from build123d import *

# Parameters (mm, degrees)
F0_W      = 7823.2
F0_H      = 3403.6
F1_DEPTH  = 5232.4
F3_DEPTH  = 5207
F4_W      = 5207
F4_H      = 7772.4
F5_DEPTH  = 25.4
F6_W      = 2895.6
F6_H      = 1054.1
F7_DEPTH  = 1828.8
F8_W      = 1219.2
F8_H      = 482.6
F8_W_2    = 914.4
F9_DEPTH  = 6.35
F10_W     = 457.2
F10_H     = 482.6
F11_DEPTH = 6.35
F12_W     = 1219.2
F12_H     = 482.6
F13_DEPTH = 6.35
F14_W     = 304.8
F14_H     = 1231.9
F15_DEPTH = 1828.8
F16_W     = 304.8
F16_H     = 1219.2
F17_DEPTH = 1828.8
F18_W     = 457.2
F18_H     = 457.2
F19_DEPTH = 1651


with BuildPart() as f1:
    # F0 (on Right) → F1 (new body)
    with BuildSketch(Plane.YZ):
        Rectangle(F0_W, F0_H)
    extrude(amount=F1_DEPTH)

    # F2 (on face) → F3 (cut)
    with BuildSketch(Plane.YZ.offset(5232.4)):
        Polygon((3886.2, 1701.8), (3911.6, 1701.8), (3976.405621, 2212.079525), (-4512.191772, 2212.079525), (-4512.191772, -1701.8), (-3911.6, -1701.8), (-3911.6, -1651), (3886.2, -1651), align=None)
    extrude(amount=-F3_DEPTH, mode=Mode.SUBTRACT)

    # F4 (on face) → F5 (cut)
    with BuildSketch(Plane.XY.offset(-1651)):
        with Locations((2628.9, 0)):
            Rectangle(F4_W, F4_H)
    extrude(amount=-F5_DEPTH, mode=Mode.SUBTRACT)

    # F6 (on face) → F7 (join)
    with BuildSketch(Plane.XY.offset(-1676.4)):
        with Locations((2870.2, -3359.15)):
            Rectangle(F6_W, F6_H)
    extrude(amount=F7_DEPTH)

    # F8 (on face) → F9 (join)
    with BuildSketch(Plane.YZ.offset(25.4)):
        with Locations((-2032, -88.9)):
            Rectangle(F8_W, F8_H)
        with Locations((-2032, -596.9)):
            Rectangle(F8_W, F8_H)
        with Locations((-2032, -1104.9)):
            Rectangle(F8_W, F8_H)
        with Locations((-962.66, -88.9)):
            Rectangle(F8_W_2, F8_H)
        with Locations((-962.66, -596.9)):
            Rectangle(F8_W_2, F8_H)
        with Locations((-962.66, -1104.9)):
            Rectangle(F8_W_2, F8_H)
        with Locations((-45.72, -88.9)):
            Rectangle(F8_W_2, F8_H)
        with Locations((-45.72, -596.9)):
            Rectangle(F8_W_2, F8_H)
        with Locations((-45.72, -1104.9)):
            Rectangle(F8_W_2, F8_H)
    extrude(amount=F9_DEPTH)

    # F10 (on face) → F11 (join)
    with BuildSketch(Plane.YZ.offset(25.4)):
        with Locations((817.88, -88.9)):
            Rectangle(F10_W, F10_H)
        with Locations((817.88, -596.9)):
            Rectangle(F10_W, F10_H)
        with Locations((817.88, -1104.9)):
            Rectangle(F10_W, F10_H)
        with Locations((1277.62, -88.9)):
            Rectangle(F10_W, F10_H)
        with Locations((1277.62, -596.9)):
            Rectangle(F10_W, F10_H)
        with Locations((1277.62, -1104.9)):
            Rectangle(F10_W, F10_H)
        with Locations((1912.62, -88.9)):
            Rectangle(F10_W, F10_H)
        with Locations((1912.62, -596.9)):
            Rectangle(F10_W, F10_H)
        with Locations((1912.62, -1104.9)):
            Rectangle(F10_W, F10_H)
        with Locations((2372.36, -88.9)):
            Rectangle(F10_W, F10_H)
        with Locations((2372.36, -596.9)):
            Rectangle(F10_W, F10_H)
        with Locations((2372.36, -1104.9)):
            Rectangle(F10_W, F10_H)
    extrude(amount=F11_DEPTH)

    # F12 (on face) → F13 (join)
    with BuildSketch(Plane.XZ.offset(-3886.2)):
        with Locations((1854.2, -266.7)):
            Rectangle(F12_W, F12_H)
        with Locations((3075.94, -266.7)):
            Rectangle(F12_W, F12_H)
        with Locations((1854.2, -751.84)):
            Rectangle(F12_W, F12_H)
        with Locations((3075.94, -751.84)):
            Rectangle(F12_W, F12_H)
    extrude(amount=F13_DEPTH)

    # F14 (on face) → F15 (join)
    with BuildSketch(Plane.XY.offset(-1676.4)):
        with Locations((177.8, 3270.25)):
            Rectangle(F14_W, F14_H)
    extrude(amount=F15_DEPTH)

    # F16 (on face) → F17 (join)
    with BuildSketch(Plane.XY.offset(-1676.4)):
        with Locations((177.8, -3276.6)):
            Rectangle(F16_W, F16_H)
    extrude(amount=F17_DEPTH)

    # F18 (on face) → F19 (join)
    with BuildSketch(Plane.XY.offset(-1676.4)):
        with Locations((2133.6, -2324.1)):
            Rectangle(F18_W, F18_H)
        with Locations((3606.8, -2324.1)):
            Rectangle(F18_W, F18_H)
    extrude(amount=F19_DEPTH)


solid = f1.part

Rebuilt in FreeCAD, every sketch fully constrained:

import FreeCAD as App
import Part
import Sketcher

V = App.Vector
Q = App.Units.Quantity


def add_polygon(sketch, points):
    """Adds a closed chain of lines whose ends are joined by coincident constraints."""
    first, n = sketch.GeometryCount, len(points)
    for a, b in zip(points, points[1:] + points[:1]):
        sketch.addGeometry(Part.LineSegment(App.Vector(*a, 0), App.Vector(*b, 0)), False)
    for i in range(n):
        sketch.addConstraint(Sketcher.Constraint("Coincident", first + i, 2, first + (i + 1) % n, 1))

doc = App.newDocument("Part")
params = doc.addObject("Spreadsheet::Sheet", "Params")
for row, (alias, value) in enumerate([
    ("sketch1_width", "308 in"),
    ("sketch1_height", "134 in"),
    ("pad1_length", "206 in"),
    ("sketch2_width", "1 in"),
    ("sketch2_width2", "307 in"),
    ("sketch2_height", "2 in"),
    ("sketch2_height2", "132 in"),
    ("pocket1_length", "205 in"),
    ("sketch3_width", "205 in"),
    ("sketch3_height", "306 in"),
    ("pocket2_length", "1 in"),
    ("sketch4_width", "114 in"),
    ("sketch4_height", "41.5 in"),
    ("pad2_length", "72 in"),
    ("sketch5_width", "48 in"),
    ("sketch5_width2", "36 in"),
    ("sketch5_height", "19 in"),
    ("pad3_length", "0.25 in"),
    ("sketch6_width", "18 in"),
    ("sketch6_height", "19 in"),
    ("pad4_length", "0.25 in"),
    ("sketch7_width", "48 in"),
    ("sketch7_height", "19 in"),
    ("pad5_length", "0.25 in"),
    ("sketch8_width", "12 in"),
    ("sketch8_height", "48.5 in"),
    ("pad6_length", "72 in"),
    ("sketch9_width", "12 in"),
    ("sketch9_height", "48 in"),
    ("pad7_length", "72 in"),
    ("sketch10_width", "18 in"),
    ("pad8_length", "65 in"),
], start=1):
    params.set(f"A{row}", alias)
    params.set(f"B{row}", "=" + value)
    params.setAlias(f"B{row}", alias)

body = doc.addObject("PartDesign::Body", "Body")

sketch1 = doc.addObject("Sketcher::SketchObject", "Sketch")
body.addObject(sketch1)
sketch1.AttachmentSupport = (doc.YZ_Plane, [""])
sketch1.MapMode = "FlatFace"
add_polygon(sketch1, [(-3912, 1702), (-3912, -1702), (3912, -1702), (3912, 1702)])
sketch1.addConstraint(Sketcher.Constraint("Vertical", 0))
sketch1.addConstraint(Sketcher.Constraint("Horizontal", 1))
sketch1.addConstraint(Sketcher.Constraint("Vertical", 2))
sketch1.addConstraint(Sketcher.Constraint("Horizontal", 3))
sketch1.addConstraint(Sketcher.Constraint("Symmetric", 0, 2, 2, 2, -1, 1))
sketch1.addConstraint(Sketcher.Constraint("DistanceX", 1, 1, 1, 2, Q("308 in")))
sketch1.addConstraint(Sketcher.Constraint("DistanceY", 0, 2, 0, 1, Q("134 in")))
sketch1.setExpression("Constraints[9]", "Params.sketch1_width")
sketch1.setExpression("Constraints[10]", "Params.sketch1_height")
pad1 = doc.addObject("PartDesign::Pad", "Pad")
body.addObject(pad1)
pad1.Profile = sketch1
pad1.setExpression("Length", "Params.pad1_length")

sketch2 = doc.addObject("Sketcher::SketchObject", "Sketch001")
body.addObject(sketch2)
sketch2.AttachmentSupport = (doc.YZ_Plane, [""])
sketch2.MapMode = "FlatFace"
sketch2.AttachmentOffset = App.Placement(V(0, 0, 206 * 25.4), App.Rotation())
add_polygon(sketch2, [(3886, 1702), (3912, 1702), (3976, 2212), (-4512, 2212), (-4512, -1702), (-3912, -1702), (-3912, -1651), (3886, -1651)])
sketch2.addConstraint(Sketcher.Constraint("Horizontal", 0))
sketch2.addConstraint(Sketcher.Constraint("Horizontal", 2))
sketch2.addConstraint(Sketcher.Constraint("Vertical", 3))
sketch2.addConstraint(Sketcher.Constraint("Horizontal", 4))
sketch2.addConstraint(Sketcher.Constraint("Vertical", 5))
sketch2.addConstraint(Sketcher.Constraint("Horizontal", 6))
sketch2.addConstraint(Sketcher.Constraint("Vertical", 7))
sketch2.addConstraint(Sketcher.Constraint("Symmetric", 0, 2, 4, 2, -1, 1))
sketch2.addConstraint(Sketcher.Constraint("DistanceX", 0, 1, 0, 2, Q("1 in")))
sketch2.addConstraint(Sketcher.Constraint("DistanceX", 6, 1, 6, 2, Q("307 in")))
sketch2.addConstraint(Sketcher.Constraint("DistanceY", 5, 1, 5, 2, Q("2 in")))
sketch2.addConstraint(Sketcher.Constraint("DistanceY", 7, 1, 7, 2, Q("132 in")))
sketch2.addConstraint(Sketcher.Constraint("Distance", 1, Q("514.378229 mm")))
sketch2.addConstraint(Sketcher.Constraint("DistanceX", 2, 2, 2, 1, Q("8488.597393 mm")))
sketch2.addConstraint(Sketcher.Constraint("DistanceX", 4, 1, 4, 2, Q("600.591772 mm")))
sketch2.setExpression("Constraints[16]", "Params.sketch2_width")
sketch2.setExpression("Constraints[17]", "Params.sketch2_width2")
sketch2.setExpression("Constraints[18]", "Params.sketch2_height")
sketch2.setExpression("Constraints[19]", "Params.sketch2_height2")
pocket1 = doc.addObject("PartDesign::Pocket", "Pocket")
body.addObject(pocket1)
pocket1.Profile = sketch2
pocket1.setExpression("Length", "Params.pocket1_length")

sketch3 = doc.addObject("Sketcher::SketchObject", "Sketch002")
body.addObject(sketch3)
sketch3.AttachmentSupport = (doc.XY_Plane, [""])
sketch3.MapMode = "FlatFace"
sketch3.AttachmentOffset = App.Placement(V(0, 0, -65 * 25.4), App.Rotation())
add_polygon(sketch3, [(25, 3886), (25, -3886), (5232, -3886), (5232, 3886)])
sketch3.addConstraint(Sketcher.Constraint("Vertical", 0))
sketch3.addConstraint(Sketcher.Constraint("Horizontal", 1))
sketch3.addConstraint(Sketcher.Constraint("Vertical", 2))
sketch3.addConstraint(Sketcher.Constraint("Horizontal", 3))
sketch3.addConstraint(Sketcher.Constraint("DistanceX", 1, 1, 1, 2, Q("205 in")))
sketch3.addConstraint(Sketcher.Constraint("DistanceY", 0, 2, 0, 1, Q("306 in")))
sketch3.addConstraint(Sketcher.Constraint("DistanceX", -1, 1, 0, 2, Q("1 in")))
sketch3.addConstraint(Sketcher.Constraint("DistanceY", 0, 2, -1, 1, Q("153 in")))
sketch3.setExpression("Constraints[8]", "Params.sketch3_width")
sketch3.setExpression("Constraints[9]", "Params.sketch3_height")
pocket2 = doc.addObject("PartDesign::Pocket", "Pocket001")
body.addObject(pocket2)
pocket2.Profile = sketch3
pocket2.setExpression("Length", "Params.pocket2_length")

sketch4 = doc.addObject("Sketcher::SketchObject", "Sketch003")
body.addObject(sketch4)
sketch4.AttachmentSupport = (doc.XY_Plane, [""])
sketch4.MapMode = "FlatFace"
sketch4.AttachmentOffset = App.Placement(V(0, 0, -66 * 25.4), App.Rotation())
add_polygon(sketch4, [(1422, -2832), (1422, -3886), (4318, -3886), (4318, -2832)])
sketch4.addConstraint(Sketcher.Constraint("Vertical", 0))
sketch4.addConstraint(Sketcher.Constraint("Horizontal", 1))
sketch4.addConstraint(Sketcher.Constraint("Vertical", 2))
sketch4.addConstraint(Sketcher.Constraint("Horizontal", 3))
sketch4.addConstraint(Sketcher.Constraint("DistanceX", 1, 1, 1, 2, Q("114 in")))
sketch4.addConstraint(Sketcher.Constraint("DistanceY", 0, 2, 0, 1, Q("41.5 in")))
sketch4.addConstraint(Sketcher.Constraint("DistanceX", -1, 1, 0, 2, Q("56 in")))
sketch4.addConstraint(Sketcher.Constraint("DistanceY", 0, 2, -1, 1, Q("153 in")))
sketch4.setExpression("Constraints[8]", "Params.sketch4_width")
sketch4.setExpression("Constraints[9]", "Params.sketch4_height")
pad2 = doc.addObject("PartDesign::Pad", "Pad001")
body.addObject(pad2)
pad2.Profile = sketch4
pad2.setExpression("Length", "Params.pad2_length")

sketch5 = doc.addObject("Sketcher::SketchObject", "Sketch004")
body.addObject(sketch5)
sketch5.AttachmentSupport = (doc.YZ_Plane, [""])
sketch5.MapMode = "FlatFace"
sketch5.AttachmentOffset = App.Placement(V(0, 0, 1 * 25.4), App.Rotation())
add_polygon(sketch5, [(-2642, 152), (-2642, -330), (-1422, -330), (-1422, 152)])
add_polygon(sketch5, [(-2642, -356), (-2642, -838), (-1422, -838), (-1422, -356)])
add_polygon(sketch5, [(-2642, -864), (-2642, -1346), (-1422, -1346), (-1422, -864)])
add_polygon(sketch5, [(-1420, 152), (-1420, -330), (-505, -330), (-505, 152)])
add_polygon(sketch5, [(-1420, -356), (-1420, -838), (-505, -838), (-505, -356)])
add_polygon(sketch5, [(-1420, -864), (-1420, -1346), (-505, -1346), (-505, -864)])
add_polygon(sketch5, [(-503, 152), (-503, -330), (411, -330), (411, 152)])
add_polygon(sketch5, [(-503, -356), (-503, -838), (411, -838), (411, -356)])
add_polygon(sketch5, [(-503, -864), (-503, -1346), (411, -1346), (411, -864)])
sketch5.addConstraint(Sketcher.Constraint("Vertical", 0))
sketch5.addConstraint(Sketcher.Constraint("Horizontal", 1))
sketch5.addConstraint(Sketcher.Constraint("Vertical", 2))
sketch5.addConstraint(Sketcher.Constraint("Horizontal", 3))
sketch5.addConstraint(Sketcher.Constraint("Vertical", 4))
sketch5.addConstraint(Sketcher.Constraint("Horizontal", 5))
sketch5.addConstraint(Sketcher.Constraint("Vertical", 6))
sketch5.addConstraint(Sketcher.Constraint("Horizontal", 7))
sketch5.addConstraint(Sketcher.Constraint("Vertical", 8))
sketch5.addConstraint(Sketcher.Constraint("Horizontal", 9))
sketch5.addConstraint(Sketcher.Constraint("Vertical", 10))
sketch5.addConstraint(Sketcher.Constraint("Horizontal", 11))
sketch5.addConstraint(Sketcher.Constraint("Vertical", 12))
sketch5.addConstraint(Sketcher.Constraint("Horizontal", 13))
sketch5.addConstraint(Sketcher.Constraint("Vertical", 14))
sketch5.addConstraint(Sketcher.Constraint("Horizontal", 15))
sketch5.addConstraint(Sketcher.Constraint("Vertical", 16))
sketch5.addConstraint(Sketcher.Constraint("Horizontal", 17))
sketch5.addConstraint(Sketcher.Constraint("Vertical", 18))
sketch5.addConstraint(Sketcher.Constraint("Horizontal", 19))
sketch5.addConstraint(Sketcher.Constraint("Vertical", 20))
sketch5.addConstraint(Sketcher.Constraint("Horizontal", 21))
sketch5.addConstraint(Sketcher.Constraint("Vertical", 22))
sketch5.addConstraint(Sketcher.Constraint("Horizontal", 23))
sketch5.addConstraint(Sketcher.Constraint("Vertical", 24))
sketch5.addConstraint(Sketcher.Constraint("Horizontal", 25))
sketch5.addConstraint(Sketcher.Constraint("Vertical", 26))
sketch5.addConstraint(Sketcher.Constraint("Horizontal", 27))
sketch5.addConstraint(Sketcher.Constraint("Vertical", 28))
sketch5.addConstraint(Sketcher.Constraint("Horizontal", 29))
sketch5.addConstraint(Sketcher.Constraint("Vertical", 30))
sketch5.addConstraint(Sketcher.Constraint("Horizontal", 31))
sketch5.addConstraint(Sketcher.Constraint("Vertical", 32))
sketch5.addConstraint(Sketcher.Constraint("Horizontal", 33))
sketch5.addConstraint(Sketcher.Constraint("Vertical", 34))
sketch5.addConstraint(Sketcher.Constraint("Horizontal", 35))
sketch5.addConstraint(Sketcher.Constraint("Horizontal", 1, 2, 12, 2))
sketch5.addConstraint(Sketcher.Constraint("Horizontal", 3, 2, 14, 2))
sketch5.addConstraint(Sketcher.Constraint("Horizontal", 5, 2, 16, 2))
sketch5.addConstraint(Sketcher.Constraint("Horizontal", 7, 2, 18, 2))
sketch5.addConstraint(Sketcher.Constraint("Horizontal", 9, 2, 20, 2))
sketch5.addConstraint(Sketcher.Constraint("Horizontal", 11, 2, 22, 2))
sketch5.addConstraint(Sketcher.Constraint("Horizontal", 13, 2, 24, 2))
sketch5.addConstraint(Sketcher.Constraint("Horizontal", 15, 2, 26, 2))
sketch5.addConstraint(Sketcher.Constraint("Horizontal", 17, 2, 28, 2))
sketch5.addConstraint(Sketcher.Constraint("Horizontal", 19, 2, 30, 2))
sketch5.addConstraint(Sketcher.Constraint("Horizontal", 21, 2, 32, 2))
sketch5.addConstraint(Sketcher.Constraint("Horizontal", 23, 2, 34, 2))
sketch5.addConstraint(Sketcher.Constraint("Vertical", 3, 2, 4, 2))
sketch5.addConstraint(Sketcher.Constraint("Vertical", 2, 2, 5, 2))
sketch5.addConstraint(Sketcher.Constraint("Vertical", 7, 2, 8, 2))
sketch5.addConstraint(Sketcher.Constraint("Vertical", 6, 2, 9, 2))
sketch5.addConstraint(Sketcher.Constraint("Vertical", 15, 2, 16, 2))
sketch5.addConstraint(Sketcher.Constraint("Vertical", 14, 2, 17, 2))
sketch5.addConstraint(Sketcher.Constraint("Vertical", 19, 2, 20, 2))
sketch5.addConstraint(Sketcher.Constraint("Vertical", 18, 2, 21, 2))
sketch5.addConstraint(Sketcher.Constraint("Vertical", 27, 2, 28, 2))
sketch5.addConstraint(Sketcher.Constraint("Vertical", 26, 2, 29, 2))
sketch5.addConstraint(Sketcher.Constraint("Vertical", 31, 2, 32, 2))
sketch5.addConstraint(Sketcher.Constraint("Vertical", 30, 2, 33, 2))
sketch5.addConstraint(Sketcher.Constraint("Equal", 23, 25))
sketch5.addConstraint(Sketcher.Constraint("Equal", 2, 4))
sketch5.addConstraint(Sketcher.Constraint("Equal", 6, 8))
sketch5.addConstraint(Sketcher.Constraint("DistanceX", 1, 1, 1, 2, Q("48 in")))
sketch5.addConstraint(Sketcher.Constraint("DistanceX", 13, 1, 13, 2, Q("36 in")))
sketch5.addConstraint(Sketcher.Constraint("DistanceY", 0, 2, 0, 1, Q("19 in")))
sketch5.addConstraint(Sketcher.Constraint("DistanceX", 0, 2, -1, 1, Q("104 in")))
sketch5.addConstraint(Sketcher.Constraint("DistanceY", 0, 2, -1, 1, Q("13 in")))
sketch5.addConstraint(Sketcher.Constraint("DistanceY", 4, 2, -1, 1, Q("33 in")))
sketch5.addConstraint(Sketcher.Constraint("DistanceY", 8, 2, -1, 1, Q("53 in")))
sketch5.addConstraint(Sketcher.Constraint("DistanceX", 12, 2, -1, 1, Q("55.9 in")))
sketch5.addConstraint(Sketcher.Constraint("DistanceX", 24, 2, -1, 1, Q("19.8 in")))
sketch5.setExpression("Constraints[99]", "Params.sketch5_width")
sketch5.setExpression("Constraints[100]", "Params.sketch5_width2")
sketch5.setExpression("Constraints[101]", "Params.sketch5_height")
pad3 = doc.addObject("PartDesign::Pad", "Pad002")
body.addObject(pad3)
pad3.Profile = sketch5
pad3.setExpression("Length", "Params.pad3_length")

sketch6 = doc.addObject("Sketcher::SketchObject", "Sketch005")
body.addObject(sketch6)
sketch6.AttachmentSupport = (doc.YZ_Plane, [""])
sketch6.MapMode = "FlatFace"
sketch6.AttachmentOffset = App.Placement(V(0, 0, 1 * 25.4), App.Rotation())
add_polygon(sketch6, [(589, 152), (589, -330), (1046, -330), (1046, 152)])
add_polygon(sketch6, [(589, -356), (589, -838), (1046, -838), (1046, -356)])
add_polygon(sketch6, [(589, -864), (589, -1346), (1046, -1346), (1046, -864)])
add_polygon(sketch6, [(1049, 152), (1049, -330), (1506, -330), (1506, 152)])
add_polygon(sketch6, [(1049, -356), (1049, -838), (1506, -838), (1506, -356)])
add_polygon(sketch6, [(1049, -864), (1049, -1346), (1506, -1346), (1506, -864)])
add_polygon(sketch6, [(1684, 152), (1684, -330), (2141, -330), (2141, 152)])
add_polygon(sketch6, [(1684, -356), (1684, -838), (2141, -838), (2141, -356)])
add_polygon(sketch6, [(1684, -864), (1684, -1346), (2141, -1346), (2141, -864)])
add_polygon(sketch6, [(2144, 152), (2144, -330), (2601, -330), (2601, 152)])
add_polygon(sketch6, [(2144, -356), (2144, -838), (2601, -838), (2601, -356)])
add_polygon(sketch6, [(2144, -864), (2144, -1346), (2601, -1346), (2601, -864)])
sketch6.addConstraint(Sketcher.Constraint("Vertical", 0))
sketch6.addConstraint(Sketcher.Constraint("Horizontal", 1))
sketch6.addConstraint(Sketcher.Constraint("Vertical", 2))
sketch6.addConstraint(Sketcher.Constraint("Horizontal", 3))
sketch6.addConstraint(Sketcher.Constraint("Vertical", 4))
sketch6.addConstraint(Sketcher.Constraint("Horizontal", 5))
sketch6.addConstraint(Sketcher.Constraint("Vertical", 6))
sketch6.addConstraint(Sketcher.Constraint("Horizontal", 7))
sketch6.addConstraint(Sketcher.Constraint("Vertical", 8))
sketch6.addConstraint(Sketcher.Constraint("Horizontal", 9))
sketch6.addConstraint(Sketcher.Constraint("Vertical", 10))
sketch6.addConstraint(Sketcher.Constraint("Horizontal", 11))
sketch6.addConstraint(Sketcher.Constraint("Vertical", 12))
sketch6.addConstraint(Sketcher.Constraint("Horizontal", 13))
sketch6.addConstraint(Sketcher.Constraint("Vertical", 14))
sketch6.addConstraint(Sketcher.Constraint("Horizontal", 15))
sketch6.addConstraint(Sketcher.Constraint("Vertical", 16))
sketch6.addConstraint(Sketcher.Constraint("Horizontal", 17))
sketch6.addConstraint(Sketcher.Constraint("Vertical", 18))
sketch6.addConstraint(Sketcher.Constraint("Horizontal", 19))
sketch6.addConstraint(Sketcher.Constraint("Vertical", 20))
sketch6.addConstraint(Sketcher.Constraint("Horizontal", 21))
sketch6.addConstraint(Sketcher.Constraint("Vertical", 22))
sketch6.addConstraint(Sketcher.Constraint("Horizontal", 23))
sketch6.addConstraint(Sketcher.Constraint("Vertical", 24))
sketch6.addConstraint(Sketcher.Constraint("Horizontal", 25))
sketch6.addConstraint(Sketcher.Constraint("Vertical", 26))
sketch6.addConstraint(Sketcher.Constraint("Horizontal", 27))
sketch6.addConstraint(Sketcher.Constraint("Vertical", 28))
sketch6.addConstraint(Sketcher.Constraint("Horizontal", 29))
sketch6.addConstraint(Sketcher.Constraint("Vertical", 30))
sketch6.addConstraint(Sketcher.Constraint("Horizontal", 31))
sketch6.addConstraint(Sketcher.Constraint("Vertical", 32))
sketch6.addConstraint(Sketcher.Constraint("Horizontal", 33))
sketch6.addConstraint(Sketcher.Constraint("Vertical", 34))
sketch6.addConstraint(Sketcher.Constraint("Horizontal", 35))
sketch6.addConstraint(Sketcher.Constraint("Vertical", 36))
sketch6.addConstraint(Sketcher.Constraint("Horizontal", 37))
sketch6.addConstraint(Sketcher.Constraint("Vertical", 38))
sketch6.addConstraint(Sketcher.Constraint("Horizontal", 39))
sketch6.addConstraint(Sketcher.Constraint("Vertical", 40))
sketch6.addConstraint(Sketcher.Constraint("Horizontal", 41))
sketch6.addConstraint(Sketcher.Constraint("Vertical", 42))
sketch6.addConstraint(Sketcher.Constraint("Horizontal", 43))
sketch6.addConstraint(Sketcher.Constraint("Vertical", 44))
sketch6.addConstraint(Sketcher.Constraint("Horizontal", 45))
sketch6.addConstraint(Sketcher.Constraint("Vertical", 46))
sketch6.addConstraint(Sketcher.Constraint("Horizontal", 47))
sketch6.addConstraint(Sketcher.Constraint("Horizontal", 1, 2, 12, 2))
sketch6.addConstraint(Sketcher.Constraint("Horizontal", 3, 2, 14, 2))
sketch6.addConstraint(Sketcher.Constraint("Horizontal", 5, 2, 16, 2))
sketch6.addConstraint(Sketcher.Constraint("Horizontal", 7, 2, 18, 2))
sketch6.addConstraint(Sketcher.Constraint("Horizontal", 9, 2, 20, 2))
sketch6.addConstraint(Sketcher.Constraint("Horizontal", 11, 2, 22, 2))
sketch6.addConstraint(Sketcher.Constraint("Horizontal", 13, 2, 24, 2))
sketch6.addConstraint(Sketcher.Constraint("Horizontal", 15, 2, 26, 2))
sketch6.addConstraint(Sketcher.Constraint("Horizontal", 17, 2, 28, 2))
sketch6.addConstraint(Sketcher.Constraint("Horizontal", 19, 2, 30, 2))
sketch6.addConstraint(Sketcher.Constraint("Horizontal", 21, 2, 32, 2))
sketch6.addConstraint(Sketcher.Constraint("Horizontal", 23, 2, 34, 2))
sketch6.addConstraint(Sketcher.Constraint("Horizontal", 25, 2, 36, 2))
sketch6.addConstraint(Sketcher.Constraint("Horizontal", 27, 2, 38, 2))
sketch6.addConstraint(Sketcher.Constraint("Horizontal", 29, 2, 40, 2))
sketch6.addConstraint(Sketcher.Constraint("Horizontal", 31, 2, 42, 2))
sketch6.addConstraint(Sketcher.Constraint("Horizontal", 33, 2, 44, 2))
sketch6.addConstraint(Sketcher.Constraint("Horizontal", 35, 2, 46, 2))
sketch6.addConstraint(Sketcher.Constraint("Vertical", 3, 2, 4, 2))
sketch6.addConstraint(Sketcher.Constraint("Vertical", 2, 2, 5, 2))
sketch6.addConstraint(Sketcher.Constraint("Vertical", 7, 2, 8, 2))
sketch6.addConstraint(Sketcher.Constraint("Vertical", 6, 2, 9, 2))
sketch6.addConstraint(Sketcher.Constraint("Vertical", 15, 2, 16, 2))
sketch6.addConstraint(Sketcher.Constraint("Vertical", 14, 2, 17, 2))
sketch6.addConstraint(Sketcher.Constraint("Vertical", 19, 2, 20, 2))
sketch6.addConstraint(Sketcher.Constraint("Vertical", 18, 2, 21, 2))
sketch6.addConstraint(Sketcher.Constraint("Vertical", 27, 2, 28, 2))
sketch6.addConstraint(Sketcher.Constraint("Vertical", 26, 2, 29, 2))
sketch6.addConstraint(Sketcher.Constraint("Vertical", 31, 2, 32, 2))
sketch6.addConstraint(Sketcher.Constraint("Vertical", 30, 2, 33, 2))
sketch6.addConstraint(Sketcher.Constraint("Vertical", 39, 2, 40, 2))
sketch6.addConstraint(Sketcher.Constraint("Vertical", 38, 2, 41, 2))
sketch6.addConstraint(Sketcher.Constraint("Vertical", 43, 2, 44, 2))
sketch6.addConstraint(Sketcher.Constraint("Vertical", 42, 2, 45, 2))
sketch6.addConstraint(Sketcher.Constraint("Equal", 11, 13))
sketch6.addConstraint(Sketcher.Constraint("Equal", 23, 25))
sketch6.addConstraint(Sketcher.Constraint("Equal", 35, 37))
sketch6.addConstraint(Sketcher.Constraint("Equal", 2, 4))
sketch6.addConstraint(Sketcher.Constraint("Equal", 6, 8))
sketch6.addConstraint(Sketcher.Constraint("DistanceX", 1, 1, 1, 2, Q("18 in")))
sketch6.addConstraint(Sketcher.Constraint("DistanceY", 0, 2, 0, 1, Q("19 in")))
sketch6.addConstraint(Sketcher.Constraint("DistanceY", 0, 2, -1, 1, Q("13 in")))
sketch6.addConstraint(Sketcher.Constraint("DistanceY", 4, 2, -1, 1, Q("33 in")))
sketch6.addConstraint(Sketcher.Constraint("DistanceY", 8, 2, -1, 1, Q("53 in")))
sketch6.addConstraint(Sketcher.Constraint("DistanceX", 13, 2, 24, 2, Q("7 in")))
sketch6.addConstraint(Sketcher.Constraint("DistanceX", -1, 1, 0, 2, Q("23.2 in")))
sketch6.addConstraint(Sketcher.Constraint("DistanceX", -1, 1, 12, 2, Q("41.3 in")))
sketch6.addConstraint(Sketcher.Constraint("DistanceX", -1, 1, 36, 2, Q("84.4 in")))
sketch6.setExpression("Constraints[135]", "Params.sketch6_width")
sketch6.setExpression("Constraints[136]", "Params.sketch6_height")
pad4 = doc.addObject("PartDesign::Pad", "Pad003")
body.addObject(pad4)
pad4.Profile = sketch6
pad4.setExpression("Length", "Params.pad4_length")

sketch7 = doc.addObject("Sketcher::SketchObject", "Sketch006")
body.addObject(sketch7)
sketch7.AttachmentSupport = (doc.XZ_Plane, [""])
sketch7.MapMode = "FlatFace"
sketch7.AttachmentOffset = App.Placement(V(0, 0, -153 * 25.4), App.Rotation())
add_polygon(sketch7, [(1245, -25), (1245, -508), (2464, -508), (2464, -25)])
add_polygon(sketch7, [(2466, -25), (2466, -508), (3686, -508), (3686, -25)])
add_polygon(sketch7, [(1245, -511), (1245, -993), (2464, -993), (2464, -511)])
add_polygon(sketch7, [(2466, -511), (2466, -993), (3686, -993), (3686, -511)])
sketch7.addConstraint(Sketcher.Constraint("Vertical", 0))
sketch7.addConstraint(Sketcher.Constraint("Horizontal", 1))
sketch7.addConstraint(Sketcher.Constraint("Vertical", 2))
sketch7.addConstraint(Sketcher.Constraint("Horizontal", 3))
sketch7.addConstraint(Sketcher.Constraint("Vertical", 4))
sketch7.addConstraint(Sketcher.Constraint("Horizontal", 5))
sketch7.addConstraint(Sketcher.Constraint("Vertical", 6))
sketch7.addConstraint(Sketcher.Constraint("Horizontal", 7))
sketch7.addConstraint(Sketcher.Constraint("Vertical", 8))
sketch7.addConstraint(Sketcher.Constraint("Horizontal", 9))
sketch7.addConstraint(Sketcher.Constraint("Vertical", 10))
sketch7.addConstraint(Sketcher.Constraint("Horizontal", 11))
sketch7.addConstraint(Sketcher.Constraint("Vertical", 12))
sketch7.addConstraint(Sketcher.Constraint("Horizontal", 13))
sketch7.addConstraint(Sketcher.Constraint("Vertical", 14))
sketch7.addConstraint(Sketcher.Constraint("Horizontal", 15))
sketch7.addConstraint(Sketcher.Constraint("Horizontal", 1, 2, 4, 2))
sketch7.addConstraint(Sketcher.Constraint("Horizontal", 3, 2, 6, 2))
sketch7.addConstraint(Sketcher.Constraint("Horizontal", 9, 2, 12, 2))
sketch7.addConstraint(Sketcher.Constraint("Horizontal", 11, 2, 14, 2))
sketch7.addConstraint(Sketcher.Constraint("Vertical", 3, 2, 8, 2))
sketch7.addConstraint(Sketcher.Constraint("Vertical", 2, 2, 9, 2))
sketch7.addConstraint(Sketcher.Constraint("Vertical", 7, 2, 12, 2))
sketch7.addConstraint(Sketcher.Constraint("Vertical", 6, 2, 13, 2))
sketch7.addConstraint(Sketcher.Constraint("Equal", 3, 5))
sketch7.addConstraint(Sketcher.Constraint("Equal", 6, 8))
sketch7.addConstraint(Sketcher.Constraint("DistanceX", 1, 1, 1, 2, Q("48 in")))
sketch7.addConstraint(Sketcher.Constraint("DistanceY", 0, 2, 0, 1, Q("19 in")))
sketch7.addConstraint(Sketcher.Constraint("DistanceX", -1, 1, 0, 2, Q("49 in")))
sketch7.addConstraint(Sketcher.Constraint("DistanceY", 0, 2, -1, 1, Q("20 in")))
sketch7.addConstraint(Sketcher.Constraint("DistanceX", -1, 1, 4, 2, Q("97.1 in")))
sketch7.addConstraint(Sketcher.Constraint("DistanceY", 8, 2, -1, 1, Q("39.1 in")))
sketch7.setExpression("Constraints[42]", "Params.sketch7_width")
sketch7.setExpression("Constraints[43]", "Params.sketch7_height")
pad5 = doc.addObject("PartDesign::Pad", "Pad004")
body.addObject(pad5)
pad5.Profile = sketch7
pad5.setExpression("Length", "Params.pad5_length")

sketch8 = doc.addObject("Sketcher::SketchObject", "Sketch007")
body.addObject(sketch8)
sketch8.AttachmentSupport = (doc.XY_Plane, [""])
sketch8.MapMode = "FlatFace"
sketch8.AttachmentOffset = App.Placement(V(0, 0, -66 * 25.4), App.Rotation())
add_polygon(sketch8, [(25, 3886), (25, 2654), (330, 2654), (330, 3886)])
sketch8.addConstraint(Sketcher.Constraint("Vertical", 0))
sketch8.addConstraint(Sketcher.Constraint("Horizontal", 1))
sketch8.addConstraint(Sketcher.Constraint("Vertical", 2))
sketch8.addConstraint(Sketcher.Constraint("Horizontal", 3))
sketch8.addConstraint(Sketcher.Constraint("DistanceX", 1, 1, 1, 2, Q("12 in")))
sketch8.addConstraint(Sketcher.Constraint("DistanceY", 0, 2, 0, 1, Q("48.5 in")))
sketch8.addConstraint(Sketcher.Constraint("DistanceX", -1, 1, 0, 2, Q("1 in")))
sketch8.addConstraint(Sketcher.Constraint("DistanceY", -1, 1, 2, 2, Q("153 in")))
sketch8.setExpression("Constraints[8]", "Params.sketch8_width")
sketch8.setExpression("Constraints[9]", "Params.sketch8_height")
pad6 = doc.addObject("PartDesign::Pad", "Pad005")
body.addObject(pad6)
pad6.Profile = sketch8
pad6.setExpression("Length", "Params.pad6_length")

sketch9 = doc.addObject("Sketcher::SketchObject", "Sketch008")
body.addObject(sketch9)
sketch9.AttachmentSupport = (doc.XY_Plane, [""])
sketch9.MapMode = "FlatFace"
sketch9.AttachmentOffset = App.Placement(V(0, 0, -66 * 25.4), App.Rotation())
add_polygon(sketch9, [(25, -2667), (25, -3886), (330, -3886), (330, -2667)])
sketch9.addConstraint(Sketcher.Constraint("Vertical", 0))
sketch9.addConstraint(Sketcher.Constraint("Horizontal", 1))
sketch9.addConstraint(Sketcher.Constraint("Vertical", 2))
sketch9.addConstraint(Sketcher.Constraint("Horizontal", 3))
sketch9.addConstraint(Sketcher.Constraint("DistanceX", 1, 1, 1, 2, Q("12 in")))
sketch9.addConstraint(Sketcher.Constraint("DistanceY", 0, 2, 0, 1, Q("48 in")))
sketch9.addConstraint(Sketcher.Constraint("DistanceX", -1, 1, 0, 2, Q("1 in")))
sketch9.addConstraint(Sketcher.Constraint("DistanceY", 0, 2, -1, 1, Q("153 in")))
sketch9.setExpression("Constraints[8]", "Params.sketch9_width")
sketch9.setExpression("Constraints[9]", "Params.sketch9_height")
pad7 = doc.addObject("PartDesign::Pad", "Pad006")
body.addObject(pad7)
pad7.Profile = sketch9
pad7.setExpression("Length", "Params.pad7_length")

sketch10 = doc.addObject("Sketcher::SketchObject", "Sketch009")
body.addObject(sketch10)
sketch10.AttachmentSupport = (doc.XY_Plane, [""])
sketch10.MapMode = "FlatFace"
sketch10.AttachmentOffset = App.Placement(V(0, 0, -66 * 25.4), App.Rotation())
add_polygon(sketch10, [(1905, -2096), (1905, -2553), (2362, -2553), (2362, -2096)])
add_polygon(sketch10, [(3378, -2096), (3378, -2553), (3835, -2553), (3835, -2096)])
sketch10.addConstraint(Sketcher.Constraint("Vertical", 0))
sketch10.addConstraint(Sketcher.Constraint("Horizontal", 1))
sketch10.addConstraint(Sketcher.Constraint("Vertical", 2))
sketch10.addConstraint(Sketcher.Constraint("Horizontal", 3))
sketch10.addConstraint(Sketcher.Constraint("Vertical", 4))
sketch10.addConstraint(Sketcher.Constraint("Horizontal", 5))
sketch10.addConstraint(Sketcher.Constraint("Vertical", 6))
sketch10.addConstraint(Sketcher.Constraint("Horizontal", 7))
sketch10.addConstraint(Sketcher.Constraint("Horizontal", 1, 2, 4, 2))
sketch10.addConstraint(Sketcher.Constraint("Horizontal", 3, 2, 6, 2))
sketch10.addConstraint(Sketcher.Constraint("Equal", 3, 5))
sketch10.addConstraint(Sketcher.Constraint("Equal", 7, 0))
sketch10.addConstraint(Sketcher.Constraint("DistanceX", 1, 1, 1, 2, Q("18 in")))
sketch10.addConstraint(Sketcher.Constraint("DistanceX", -1, 1, 0, 2, Q("75 in")))
sketch10.addConstraint(Sketcher.Constraint("DistanceX", -1, 1, 4, 2, Q("133 in")))
sketch10.addConstraint(Sketcher.Constraint("DistanceY", 0, 2, -1, 1, Q("100.5 in")))
sketch10.setExpression("Constraints[20]", "Params.sketch10_width")
pad8 = doc.addObject("PartDesign::Pad", "Pad007")
body.addObject(pad8)
pad8.Profile = sketch10
pad8.setExpression("Length", "Params.pad8_length")

doc.recompute()
